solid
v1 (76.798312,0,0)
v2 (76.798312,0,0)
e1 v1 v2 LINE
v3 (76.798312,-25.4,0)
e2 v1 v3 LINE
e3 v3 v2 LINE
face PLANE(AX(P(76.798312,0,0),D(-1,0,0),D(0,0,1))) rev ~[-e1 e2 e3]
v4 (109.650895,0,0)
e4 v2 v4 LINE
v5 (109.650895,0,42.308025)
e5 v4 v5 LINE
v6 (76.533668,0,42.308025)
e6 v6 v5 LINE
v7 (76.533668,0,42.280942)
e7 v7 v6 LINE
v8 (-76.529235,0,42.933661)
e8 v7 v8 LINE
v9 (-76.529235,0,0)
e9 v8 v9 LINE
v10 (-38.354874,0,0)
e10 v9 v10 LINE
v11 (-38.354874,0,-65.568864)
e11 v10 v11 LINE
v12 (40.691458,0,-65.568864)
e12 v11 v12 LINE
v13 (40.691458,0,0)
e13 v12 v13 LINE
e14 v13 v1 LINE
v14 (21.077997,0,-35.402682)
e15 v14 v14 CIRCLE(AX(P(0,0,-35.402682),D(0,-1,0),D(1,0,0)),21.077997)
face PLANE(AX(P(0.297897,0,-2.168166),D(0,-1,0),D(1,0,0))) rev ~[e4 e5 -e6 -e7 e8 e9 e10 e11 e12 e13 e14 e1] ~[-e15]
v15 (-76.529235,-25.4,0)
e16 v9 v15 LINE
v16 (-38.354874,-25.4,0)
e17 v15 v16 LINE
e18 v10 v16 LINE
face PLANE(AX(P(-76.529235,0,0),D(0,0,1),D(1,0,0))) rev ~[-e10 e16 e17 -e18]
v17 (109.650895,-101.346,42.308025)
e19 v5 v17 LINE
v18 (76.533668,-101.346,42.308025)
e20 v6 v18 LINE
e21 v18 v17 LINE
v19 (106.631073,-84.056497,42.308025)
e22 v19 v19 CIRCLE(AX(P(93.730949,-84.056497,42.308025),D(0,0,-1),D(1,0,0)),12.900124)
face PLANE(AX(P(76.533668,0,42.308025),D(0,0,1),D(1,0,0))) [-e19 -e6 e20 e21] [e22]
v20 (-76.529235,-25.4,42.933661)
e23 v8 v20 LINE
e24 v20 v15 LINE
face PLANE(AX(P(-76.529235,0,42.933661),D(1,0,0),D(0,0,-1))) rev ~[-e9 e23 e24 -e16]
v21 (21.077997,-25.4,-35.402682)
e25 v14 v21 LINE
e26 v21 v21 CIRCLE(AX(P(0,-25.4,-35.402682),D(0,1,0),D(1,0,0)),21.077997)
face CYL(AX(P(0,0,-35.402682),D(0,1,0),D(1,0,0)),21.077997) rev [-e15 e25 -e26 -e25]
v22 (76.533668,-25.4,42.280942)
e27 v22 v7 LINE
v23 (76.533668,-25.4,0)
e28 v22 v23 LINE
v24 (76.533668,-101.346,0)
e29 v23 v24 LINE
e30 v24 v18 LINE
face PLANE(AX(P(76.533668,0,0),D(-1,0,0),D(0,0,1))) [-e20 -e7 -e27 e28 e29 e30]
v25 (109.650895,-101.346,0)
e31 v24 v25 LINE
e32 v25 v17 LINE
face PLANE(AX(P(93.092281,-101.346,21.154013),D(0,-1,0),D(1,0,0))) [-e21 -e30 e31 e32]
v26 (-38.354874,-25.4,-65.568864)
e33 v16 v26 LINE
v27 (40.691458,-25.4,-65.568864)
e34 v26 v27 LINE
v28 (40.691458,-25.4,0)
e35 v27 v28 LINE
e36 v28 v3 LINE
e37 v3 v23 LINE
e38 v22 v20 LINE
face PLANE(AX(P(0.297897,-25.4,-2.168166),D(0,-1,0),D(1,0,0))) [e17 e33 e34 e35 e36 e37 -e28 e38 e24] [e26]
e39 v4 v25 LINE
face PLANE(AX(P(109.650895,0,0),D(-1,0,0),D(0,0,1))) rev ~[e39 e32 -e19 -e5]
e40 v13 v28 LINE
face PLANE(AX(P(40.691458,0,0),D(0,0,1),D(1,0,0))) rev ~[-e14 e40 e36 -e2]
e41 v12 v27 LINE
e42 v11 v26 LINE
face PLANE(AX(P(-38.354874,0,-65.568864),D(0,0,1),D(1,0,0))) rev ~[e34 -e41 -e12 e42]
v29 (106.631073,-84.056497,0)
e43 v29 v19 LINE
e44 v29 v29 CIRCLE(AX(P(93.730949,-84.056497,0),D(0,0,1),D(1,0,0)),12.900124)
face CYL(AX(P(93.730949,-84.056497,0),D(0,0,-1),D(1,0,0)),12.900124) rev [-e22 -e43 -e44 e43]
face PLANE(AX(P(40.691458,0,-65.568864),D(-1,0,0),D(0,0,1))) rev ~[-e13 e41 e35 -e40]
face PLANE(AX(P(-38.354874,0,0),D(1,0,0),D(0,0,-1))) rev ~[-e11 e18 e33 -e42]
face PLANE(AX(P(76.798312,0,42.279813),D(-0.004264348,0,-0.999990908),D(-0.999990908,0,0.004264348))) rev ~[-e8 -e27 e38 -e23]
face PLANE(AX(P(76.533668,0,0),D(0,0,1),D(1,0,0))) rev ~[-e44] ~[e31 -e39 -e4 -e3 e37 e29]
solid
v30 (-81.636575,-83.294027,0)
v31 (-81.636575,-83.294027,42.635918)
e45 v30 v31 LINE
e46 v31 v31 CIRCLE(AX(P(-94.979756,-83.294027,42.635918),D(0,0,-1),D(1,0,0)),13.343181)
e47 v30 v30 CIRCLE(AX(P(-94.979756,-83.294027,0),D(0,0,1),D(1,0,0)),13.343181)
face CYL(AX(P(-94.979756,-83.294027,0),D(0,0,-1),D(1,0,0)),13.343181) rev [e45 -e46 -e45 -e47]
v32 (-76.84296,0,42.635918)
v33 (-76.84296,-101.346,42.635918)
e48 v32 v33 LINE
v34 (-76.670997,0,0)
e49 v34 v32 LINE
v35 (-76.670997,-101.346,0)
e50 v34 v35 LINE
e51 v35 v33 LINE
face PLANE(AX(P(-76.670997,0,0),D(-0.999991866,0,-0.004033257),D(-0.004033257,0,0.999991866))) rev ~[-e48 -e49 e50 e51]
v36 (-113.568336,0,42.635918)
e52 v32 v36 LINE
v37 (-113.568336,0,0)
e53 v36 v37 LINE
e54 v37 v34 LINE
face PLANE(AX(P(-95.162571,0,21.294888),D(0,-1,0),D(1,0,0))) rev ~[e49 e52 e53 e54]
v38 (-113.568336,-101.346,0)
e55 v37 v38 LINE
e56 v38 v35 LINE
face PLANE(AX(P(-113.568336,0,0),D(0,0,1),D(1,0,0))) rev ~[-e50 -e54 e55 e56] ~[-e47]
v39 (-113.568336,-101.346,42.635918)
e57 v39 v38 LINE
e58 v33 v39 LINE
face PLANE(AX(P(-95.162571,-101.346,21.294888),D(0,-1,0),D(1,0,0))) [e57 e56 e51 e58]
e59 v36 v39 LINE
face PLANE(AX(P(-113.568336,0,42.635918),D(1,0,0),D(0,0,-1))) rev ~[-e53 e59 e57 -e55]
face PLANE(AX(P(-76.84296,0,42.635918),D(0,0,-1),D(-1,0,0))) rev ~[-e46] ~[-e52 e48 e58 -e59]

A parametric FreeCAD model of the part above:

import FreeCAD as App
import Part
import Sketcher
from FreeCAD import Vector
Q = App.Units.Quantity

doc = App.newDocument("Part")
body = doc.addObject("PartDesign::Body", "Body")
body.AllowCompound = True

# Sketch on XZ plane
sketch1 = body.newObject("Sketcher::SketchObject", "Sketch")
sketch1.AttachmentSupport = (doc.getObject("XZ_Plane"), [""])
sketch1.MapMode = "FlatFace"
sketch1.addGeometry([
    Part.LineSegment(Vector(-38.354874, 0, 0), Vector(-38.354874, -65.568864, 0)),  # 0
    Part.LineSegment(Vector(-38.354874, -65.568864, 0), Vector(40.691458, -65.568864, 0)),  # 1
    Part.LineSegment(Vector(40.691458, -65.568864, 0), Vector(40.691458, 0, 0)),  # 2
    Part.LineSegment(Vector(40.691458, 0, 0), Vector(76.798312, 0, 0)),  # 3
    Part.LineSegment(Vector(76.798312, 0, 0), Vector(76.798312, 42.279813, 0)),  # 4
    Part.LineSegment(Vector(76.798312, 42.279813, 0), Vector(-76.529235, 42.933661, 0)),  # 5
    Part.LineSegment(Vector(-76.529235, 42.933661, 0), Vector(-76.529235, 0, 0)),  # 6
    Part.LineSegment(Vector(-76.529235, 0, 0), Vector(-38.354874, 0, 0)),  # 7
], False)
sketch1.addConstraint([
    Sketcher.Constraint("Coincident", 0, 2, 1, 1),
    Sketcher.Constraint("Coincident", 1, 2, 2, 1),
    Sketcher.Constraint("Coincident", 2, 2, 3, 1),
    Sketcher.Constraint("Coincident", 3, 2, 4, 1),
    Sketcher.Constraint("Coincident", 4, 2, 5, 1),
    Sketcher.Constraint("Coincident", 5, 2, 6, 1),
    Sketcher.Constraint("Coincident", 6, 2, 7, 1),
    Sketcher.Constraint("Coincident", 7, 2, 0, 1),
    Sketcher.Constraint("Vertical", 0),
    Sketcher.Constraint("Horizontal", 1),
    Sketcher.Constraint("Vertical", 2),
    Sketcher.Constraint("Horizontal", 3),
    Sketcher.Constraint("Vertical", 4),
    Sketcher.Constraint("Vertical", 6),
    Sketcher.Constraint("Horizontal", 7),
    Sketcher.Constraint("PointOnObject", 2, 2, -1),
    Sketcher.Constraint("PointOnObject", 6, 2, -1),
    Sketcher.Constraint("DistanceX", 7, 1, 7, 2, Q("38.174361 mm")),
    Sketcher.Constraint("DistanceY", 6, 2, 6, 1, Q("42.933661 mm")),
    Sketcher.Constraint("Distance", 5, Q("153.328941 mm")),
    Sketcher.Constraint("DistanceX", 1, 1, 1, 2, Q("79.046332 mm")),
    Sketcher.Constraint("DistanceX", 3, 1, 3, 2, Q("36.106854 mm")),
    Sketcher.Constraint("DistanceY", 0, 2, 0, 1, Q("65.568864 mm")),
    Sketcher.Constraint("DistanceX", -1, 1, 3, 2, Q("76.798312 mm")),
])
pad1 = body.newObject("PartDesign::Pad", "Pad")
pad1.Profile = sketch1
pad1.Length = Q("1 in")

# Sketch on XZ plane
sketch2 = body.newObject("Sketcher::SketchObject", "Sketch001")
sketch2.AttachmentSupport = (doc.getObject("XZ_Plane"), [""])
sketch2.MapMode = "FlatFace"
sketch2.addGeometry([
    Part.LineSegment(Vector(76.533668, 42.308025, 0), Vector(76.533668, 0, 0)),  # 0
    Part.LineSegment(Vector(76.533668, 0, 0), Vector(109.650895, 0, 0)),  # 1
    Part.LineSegment(Vector(109.650895, 0, 0), Vector(109.650895, 42.308025, 0)),  # 2
    Part.LineSegment(Vector(109.650895, 42.308025, 0), Vector(76.533668, 42.308025, 0)),  # 3
    Part.LineSegment(Vector(-76.670997, 0, 0), Vector(-76.84296, 42.635918, 0)),  # 4
    Part.LineSegment(Vector(-76.84296, 42.635918, 0), Vector(-113.568336, 42.635918, 0)),  # 5
    Part.LineSegment(Vector(-113.568336, 42.635918, 0), Vector(-113.568336, 0, 0)),  # 6
    Part.LineSegment(Vector(-113.568336, 0, 0), Vector(-76.670997, 0, 0)),  # 7
], False)
sketch2.addConstraint([
    Sketcher.Constraint("Coincident", 0, 2, 1, 1),
    Sketcher.Constraint("Coincident", 1, 2, 2, 1),
    Sketcher.Constraint("Coincident", 2, 2, 3, 1),
    Sketcher.Constraint("Coincident", 3, 2, 0, 1),
    Sketcher.Constraint("Coincident", 4, 2, 5, 1),
    Sketcher.Constraint("Coincident", 5, 2, 6, 1),
    Sketcher.Constraint("Coincident", 6, 2, 7, 1),
    Sketcher.Constraint("Coincident", 7, 2, 4, 1),
    Sketcher.Constraint("Vertical", 0),
    Sketcher.Constraint("Horizontal", 1),
    Sketcher.Constraint("Vertical", 2),
    Sketcher.Constraint("Horizontal", 3),
    Sketcher.Constraint("Horizontal", 5),
    Sketcher.Constraint("Vertical", 6),
    Sketcher.Constraint("Horizontal", 7),
    Sketcher.Constraint("PointOnObject", 0, 2, -1),
    Sketcher.Constraint("PointOnObject", 6, 2, -1),
    Sketcher.Constraint("DistanceX", 7, 1, 7, 2, Q("36.897339 mm")),
    Sketcher.Constraint("DistanceX", 1, 1, 1, 2, Q("33.117227 mm")),
    Sketcher.Constraint("DistanceX", 5, 2, 5, 1, Q("36.725376 mm")),
    Sketcher.Constraint("DistanceY", 0, 2, 0, 1, Q("42.308025 mm")),
    Sketcher.Constraint("DistanceY", 6, 2, 6, 1, Q("42.635918 mm")),
    Sketcher.Constraint("DistanceX", 4, 2, -1, 1, Q("76.84296 mm")),
    Sketcher.Constraint("DistanceX", 5, 2, 2, 2, Q("223.219231 mm")),
])
pad2 = body.newObject("PartDesign::Pad", "Pad001")
pad2.Profile = sketch2
pad2.Length = Q("3.99 in")

# Sketch on XY plane
sketch3 = body.newObject("Sketcher::SketchObject", "Sketch002")
sketch3.AttachmentSupport = (doc.getObject("XY_Plane"), [""])
sketch3.MapMode = "FlatFace"
sketch3.addGeometry([
    Part.Circle(Vector(-94.979756, -83.294027, 0), Vector(0, 0, 1), 13.343181),
    Part.Circle(Vector(93.730949, -84.056497, 0), Vector(0, 0, 1), 12.900124),
], False)
sketch3.addConstraint([
    Sketcher.Constraint("Diameter", 0, Q("26.686362 mm")),
    Sketcher.Constraint("Diameter", 1, Q("25.800248 mm")),
    Sketcher.Constraint("DistanceX", -1, 1, 1, 3, Q("93.730949 mm")),
    Sketcher.Constraint("DistanceY", 1, 3, 0, 3, Q("0.76247 mm")),
    Sketcher.Constraint("DistanceX", 0, 3, -1, 1, Q("94.979756 mm")),
    Sketcher.Constraint("DistanceY", 0, 3, -1, 1, Q("83.294027 mm")),
])
pocket1 = body.newObject("PartDesign::Pocket", "Pocket")
pocket1.Profile = sketch3
pocket1.Length = Q("5.05 in")
pocket1.Reversed = True

# Sketch on XZ plane
sketch4 = body.newObject("Sketcher::SketchObject", "Sketch003")
sketch4.AttachmentSupport = (doc.getObject("XZ_Plane"), [""])
sketch4.MapMode = "FlatFace"
sketch4.addGeometry(Part.Circle(Vector(0, -35.402682, 0), Vector(0, 0, 1), 21.077997), False)
sketch4.addConstraint([
    Sketcher.Constraint("PointOnObject", 0, 3, -2),
    Sketcher.Constraint("Diameter", 0, Q("42.155994 mm")),
    Sketcher.Constraint("DistanceY", 0, 3, -1, 1, Q("35.402682 mm")),
])
pocket2 = body.newObject("PartDesign::Pocket", "Pocket001")
pocket2.Profile = sketch4
pocket2.Length = Q("2.47 in")
pocket2.Reversed = True

doc.recompute()
